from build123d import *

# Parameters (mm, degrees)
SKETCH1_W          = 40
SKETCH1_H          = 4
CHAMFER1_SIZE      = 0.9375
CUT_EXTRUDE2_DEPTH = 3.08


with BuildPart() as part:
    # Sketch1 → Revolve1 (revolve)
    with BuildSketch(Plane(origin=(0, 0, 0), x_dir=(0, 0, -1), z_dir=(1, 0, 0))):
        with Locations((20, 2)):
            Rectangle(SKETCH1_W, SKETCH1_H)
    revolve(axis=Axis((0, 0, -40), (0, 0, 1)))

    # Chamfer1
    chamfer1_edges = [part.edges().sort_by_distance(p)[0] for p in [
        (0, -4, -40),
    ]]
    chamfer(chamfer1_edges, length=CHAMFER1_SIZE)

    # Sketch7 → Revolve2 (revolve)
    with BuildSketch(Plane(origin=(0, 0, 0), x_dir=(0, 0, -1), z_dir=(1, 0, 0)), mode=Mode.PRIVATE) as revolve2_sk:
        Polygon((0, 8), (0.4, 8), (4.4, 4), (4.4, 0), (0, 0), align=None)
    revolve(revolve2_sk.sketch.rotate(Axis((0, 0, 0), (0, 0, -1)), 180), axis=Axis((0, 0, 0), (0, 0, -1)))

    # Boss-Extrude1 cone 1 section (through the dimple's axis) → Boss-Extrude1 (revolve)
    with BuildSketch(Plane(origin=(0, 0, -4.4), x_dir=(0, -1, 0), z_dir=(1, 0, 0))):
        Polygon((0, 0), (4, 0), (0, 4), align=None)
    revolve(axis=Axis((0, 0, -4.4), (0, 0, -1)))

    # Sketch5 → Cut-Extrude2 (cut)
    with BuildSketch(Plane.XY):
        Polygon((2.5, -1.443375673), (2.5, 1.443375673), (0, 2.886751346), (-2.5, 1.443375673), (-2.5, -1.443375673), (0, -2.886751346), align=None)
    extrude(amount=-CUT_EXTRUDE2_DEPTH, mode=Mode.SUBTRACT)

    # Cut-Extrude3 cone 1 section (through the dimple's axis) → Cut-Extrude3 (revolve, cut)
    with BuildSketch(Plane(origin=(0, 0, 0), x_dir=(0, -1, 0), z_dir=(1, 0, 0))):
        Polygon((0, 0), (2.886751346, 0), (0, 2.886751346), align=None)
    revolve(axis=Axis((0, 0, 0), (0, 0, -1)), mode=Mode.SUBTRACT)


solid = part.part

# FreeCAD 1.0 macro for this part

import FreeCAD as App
import Part
import Sketcher
Q = App.Units.Quantity


def edges_at(feature, points):
    """Names of the edges that pass closest to the given points."""
    edges = feature.Shape.Edges
    near = lambda p: min(range(len(edges)), key=lambda i: edges[i].distToShape(Part.Vertex(*p))[0])
    return sorted({f"Edge{near(p) + 1}" for p in points})

doc = App.newDocument("Part")
params = doc.addObject("Spreadsheet::Sheet", "Params")
for row, (alias, value) in enumerate([
    ("sketch1_width", "4 mm"),
    ("sketch1_height", "40 mm"),
    ("revolution_angle", "360 deg"),
    ("chamfer_size", "0.9375 mm"),
    ("sketch2_width", "8 mm"),
    ("sketch2_width2", "4 mm"),
    ("sketch2_height", "0.4 mm"),
    ("revolution2_angle", "360 deg"),
    ("sketch3_width", "4 mm"),
    ("revolution3_angle", "360 deg"),
    ("pocket1_length", "3.08 mm"),
    ("groove_angle", "360 deg"),
], start=1):
    params.set(f"A{row}", alias)
    params.set(f"B{row}", "=" + value)
    params.setAlias(f"B{row}", alias)

body = doc.addObject("PartDesign::Body", "Body")

# Sketch on YZ plane
sketch1 = body.newObject("Sketcher::SketchObject", "Sketch")
sketch1.AttachmentSupport = (doc.getObject("YZ_Plane"), [""])
sketch1.MapMode = "FlatFace"
sketch1.addGeometry([
    Part.LineSegment(App.Vector(4, 0, 0), App.Vector(0, 0, 0)),
    Part.LineSegment(App.Vector(0, 0, 0), App.Vector(0, -40, 0)),
    Part.LineSegment(App.Vector(0, -40, 0), App.Vector(4, -40, 0)),
    Part.LineSegment(App.Vector(4, -40, 0), App.Vector(4, 0, 0)),
], False)
sketch1.addConstraint([
    Sketcher.Constraint("Coincident", 0, 2, 1, 1),
    Sketcher.Constraint("Coincident", 1, 2, 2, 1),
    Sketcher.Constraint("Coincident", 2, 2, 3, 1),
    Sketcher.Constraint("Coincident", 3, 2, 0, 1),
    Sketcher.Constraint("Horizontal", 0),
    Sketcher.Constraint("Vertical", 1),
    Sketcher.Constraint("Horizontal", 2),
    Sketcher.Constraint("Vertical", 3),
    Sketcher.Constraint("Coincident", 0, 2, -1, 1),
    Sketcher.Constraint("DistanceX", 0, 2, 0, 1, 4.0),
    Sketcher.Constraint("DistanceY", 1, 2, 1, 1, 40.0),
])
sketch1.setExpression("Constraints[9]", "Params.sketch1_width")
sketch1.setExpression("Constraints[10]", "Params.sketch1_height")
revolution = body.newObject("PartDesign::Revolution", "Revolution")
revolution.Profile = sketch1
revolution.ReferenceAxis = (sketch1, ["V_Axis"])
revolution.setExpression("Angle", "Params.revolution_angle")
doc.recompute()

chamfer = body.newObject("PartDesign::Chamfer", "Chamfer")
chamfer.Base = (revolution, edges_at(revolution, [(0, -4, -40)]))
chamfer.setExpression("Size", "Params.chamfer_size")

# Sketch on YZ plane
sketch2 = body.newObject("Sketcher::SketchObject", "Sketch001")
sketch2.AttachmentSupport = (doc.getObject("YZ_Plane"), [""])
sketch2.MapMode = "FlatFace"
sketch2.addGeometry([
    Part.LineSegment(App.Vector(8, -0.4, 0), App.Vector(8, 0, 0)),  # 0
    Part.LineSegment(App.Vector(8, 0, 0), App.Vector(0, 0, 0)),  # 1
    Part.LineSegment(App.Vector(0, 0, 0), App.Vector(0, -4.4, 0)),  # 2
    Part.LineSegment(App.Vector(0, -4.4, 0), App.Vector(4, -4.4, 0)),  # 3
    Part.LineSegment(App.Vector(4, -4.4, 0), App.Vector(8, -0.4, 0)),  # 4
], False)
sketch2.addConstraint([
    Sketcher.Constraint("Coincident", 0, 2, 1, 1),
    Sketcher.Constraint("Coincident", 1, 2, 2, 1),
    Sketcher.Constraint("Coincident", 2, 2, 3, 1),
    Sketcher.Constraint("Coincident", 3, 2, 4, 1),
    Sketcher.Constraint("Coincident", 4, 2, 0, 1),
    Sketcher.Constraint("Vertical", 0),
    Sketcher.Constraint("Horizontal", 1),
    Sketcher.Constraint("Vertical", 2),
    Sketcher.Constraint("Horizontal", 3),
    Sketcher.Constraint("Coincident", 1, 2, -1, 1),
    Sketcher.Constraint("DistanceX", 1, 2, 1, 1, 8.0),
    Sketcher.Constraint("DistanceX", 3, 1, 3, 2, 4.0),
    Sketcher.Constraint("Angle", 4, Q("45 deg")),
    Sketcher.Constraint("DistanceY", 0, 1, 0, 2, 0.4),
])
sketch2.setExpression("Constraints[10]", "Params.sketch2_width")
sketch2.setExpression("Constraints[11]", "Params.sketch2_width2")
sketch2.setExpression("Constraints[13]", "Params.sketch2_height")
revolution2 = body.newObject("PartDesign::Revolution", "Revolution001")
revolution2.Profile = sketch2
revolution2.ReferenceAxis = (sketch2, ["V_Axis"])
revolution2.setExpression("Angle", "Params.revolution2_angle")

# Sketch on YZ plane
sketch3 = body.newObject("Sketcher::SketchObject", "Sketch002")
sketch3.AttachmentSupport = (doc.getObject("YZ_Plane"), [""])
sketch3.MapMode = "FlatFace"
sketch3.addGeometry([
    Part.LineSegment(App.Vector(0, -4.4, 0), App.Vector(-4, -4.4, 0)),
    Part.LineSegment(App.Vector(-4, -4.4, 0), App.Vector(0, -8.4, 0)),
    Part.LineSegment(App.Vector(0, -8.4, 0), App.Vector(0, -4.4, 0)),
], False)
sketch3.addConstraint([
    Sketcher.Constraint("Coincident", 0, 2, 1, 1),
    Sketcher.Constraint("Coincident", 1, 2, 2, 1),
    Sketcher.Constraint("Coincident", 2, 2, 0, 1),
    Sketcher.Constraint("Horizontal", 0),
    Sketcher.Constraint("Vertical", 2),
    Sketcher.Constraint("PointOnObject", 1, 2, -2),
    Sketcher.Constraint("Equal", 0, 2),
    Sketcher.Constraint("DistanceX", 0, 2, 0, 1, 4.0),
    Sketcher.Constraint("DistanceY", 0, 2, -1, 1, 4.4),
])
sketch3.setExpression("Constraints[7]", "Params.sketch3_width")
revolution3 = body.newObject("PartDesign::Revolution", "Revolution002")
revolution3.Profile = sketch3
revolution3.ReferenceAxis = (sketch3, ["V_Axis"])
revolution3.setExpression("Angle", "Params.revolution3_angle")

# Sketch on XY plane
sketch4 = body.newObject("Sketcher::SketchObject", "Sketch003")
sketch4.AttachmentSupport = (doc.getObject("XY_Plane"), [""])
sketch4.MapMode = "FlatFace"
sketch4.addGeometry([
    Part.LineSegment(App.Vector(2.5, -1.4, 0), App.Vector(2.5, 1.4, 0)),  # 0
    Part.LineSegment(App.Vector(2.5, 1.4, 0), App.Vector(0, 2.9, 0)),  # 1
    Part.LineSegment(App.Vector(0, 2.9, 0), App.Vector(-2.5, 1.4, 0)),  # 2
    Part.LineSegment(App.Vector(-2.5, 1.4, 0), App.Vector(-2.5, -1.4, 0)),  # 3
    Part.LineSegment(App.Vector(-2.5, -1.4, 0), App.Vector(0, -2.9, 0)),  # 4
    Part.LineSegment(App.Vector(0, -2.9, 0), App.Vector(2.5, -1.4, 0)),  # 5
], False)
sketch4.addConstraint([
    Sketcher.Constraint("Coincident", 0, 2, 1, 1),
    Sketcher.Constraint("Coincident", 1, 2, 2, 1),
    Sketcher.Constraint("Coincident", 2, 2, 3, 1),
    Sketcher.Constraint("Coincident", 3, 2, 4, 1),
    Sketcher.Constraint("Coincident", 4, 2, 5, 1),
    Sketcher.Constraint("Coincident", 5, 2, 0, 1),
    Sketcher.Constraint("Vertical", 0),
    Sketcher.Constraint("Vertical", 3),
    Sketcher.Constraint("Symmetric", 0, 2, 3, 2, -1, 1),
    Sketcher.Constraint("Symmetric", 1, 2, 4, 2, -1, 1),
    Sketcher.Constraint("PointOnObject", 1, 2, -2),
    Sketcher.Constraint("Parallel", 2, 5),
    Sketcher.Constraint("Horizontal", 0, 2, 2, 2),
    Sketcher.Constraint("Angle", 1, Q("150 deg")),
    Sketcher.Constraint("DistanceX", 2, 2, 0, 2, 5.0),
    Sketcher.Constraint("DistanceY", 0, 1, 0, 2, 2.886751),
])
pocket1 = body.newObject("PartDesign::Pocket", "Pocket")
pocket1.Profile = sketch4
pocket1.setExpression("Length", "Params.pocket1_length")

# Sketch on YZ plane
sketch5 = body.newObject("Sketcher::SketchObject", "Sketch004")
sketch5.AttachmentSupport = (doc.getObject("YZ_Plane"), [""])
sketch5.MapMode = "FlatFace"
sketch5.addGeometry([
    Part.LineSegment(App.Vector(0, 0, 0), App.Vector(-2.9, 0, 0)),
    Part.LineSegment(App.Vector(-2.9, 0, 0), App.Vector(0, -2.9, 0)),
    Part.LineSegment(App.Vector(0, -2.9, 0), App.Vector(0, 0, 0)),
], False)
sketch5.addConstraint([
    Sketcher.Constraint("Coincident", 0, 2, 1, 1),
    Sketcher.Constraint("Coincident", 1, 2, 2, 1),
    Sketcher.Constraint("Coincident", 2, 2, 0, 1),
    Sketcher.Constraint("Horizontal", 0),
    Sketcher.Constraint("Vertical", 2),
    Sketcher.Constraint("Coincident", 2, 2, -1, 1),
    Sketcher.Constraint("Equal", 0, 2),
    Sketcher.Constraint("DistanceX", 0, 2, 0, 1, 2.886751),
])
groove = body.newObject("PartDesign::Groove", "Groove")
groove.Profile = sketch5
groove.ReferenceAxis = (sketch5, ["V_Axis"])
groove.setExpression("Angle", "Params.groove_angle")

doc.recompute()
